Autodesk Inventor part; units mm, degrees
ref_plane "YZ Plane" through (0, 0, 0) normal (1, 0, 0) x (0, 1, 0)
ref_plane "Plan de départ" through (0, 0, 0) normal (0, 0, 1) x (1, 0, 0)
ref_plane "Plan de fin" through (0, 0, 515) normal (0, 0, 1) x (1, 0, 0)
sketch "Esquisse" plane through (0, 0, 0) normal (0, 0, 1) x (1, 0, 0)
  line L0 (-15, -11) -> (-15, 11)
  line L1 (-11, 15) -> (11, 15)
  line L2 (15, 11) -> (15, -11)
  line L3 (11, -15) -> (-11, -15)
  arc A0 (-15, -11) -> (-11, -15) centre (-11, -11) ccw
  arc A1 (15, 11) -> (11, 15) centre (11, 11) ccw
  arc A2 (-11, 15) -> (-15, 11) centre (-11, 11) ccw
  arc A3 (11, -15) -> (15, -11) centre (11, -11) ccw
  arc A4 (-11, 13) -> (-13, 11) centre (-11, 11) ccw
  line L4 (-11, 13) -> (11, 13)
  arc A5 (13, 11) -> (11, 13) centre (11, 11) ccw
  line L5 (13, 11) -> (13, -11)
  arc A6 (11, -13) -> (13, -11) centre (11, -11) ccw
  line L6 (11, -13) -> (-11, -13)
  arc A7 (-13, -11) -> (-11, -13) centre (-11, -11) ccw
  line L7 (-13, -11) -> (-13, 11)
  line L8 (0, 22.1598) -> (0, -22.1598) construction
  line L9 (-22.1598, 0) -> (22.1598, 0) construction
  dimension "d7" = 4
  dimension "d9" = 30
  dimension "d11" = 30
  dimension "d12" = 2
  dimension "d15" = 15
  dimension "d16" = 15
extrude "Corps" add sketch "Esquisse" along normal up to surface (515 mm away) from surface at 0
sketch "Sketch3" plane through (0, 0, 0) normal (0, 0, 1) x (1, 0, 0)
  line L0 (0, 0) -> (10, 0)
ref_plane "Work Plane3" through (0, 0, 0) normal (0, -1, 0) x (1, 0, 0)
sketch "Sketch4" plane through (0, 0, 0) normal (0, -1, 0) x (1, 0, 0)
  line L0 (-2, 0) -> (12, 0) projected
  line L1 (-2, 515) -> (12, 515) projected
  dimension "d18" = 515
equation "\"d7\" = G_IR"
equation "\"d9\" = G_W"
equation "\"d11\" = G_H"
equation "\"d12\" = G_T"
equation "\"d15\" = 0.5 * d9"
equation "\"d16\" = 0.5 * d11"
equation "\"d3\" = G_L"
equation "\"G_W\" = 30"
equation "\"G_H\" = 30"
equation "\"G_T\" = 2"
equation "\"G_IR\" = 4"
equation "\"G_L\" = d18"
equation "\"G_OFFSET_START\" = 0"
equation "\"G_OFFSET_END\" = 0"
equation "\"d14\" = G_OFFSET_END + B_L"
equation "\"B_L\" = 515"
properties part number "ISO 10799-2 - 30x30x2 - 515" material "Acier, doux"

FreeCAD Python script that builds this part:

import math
import FreeCAD as App
import Part
import Sketcher

V = App.Vector
Q = App.Units.Quantity

doc = App.newDocument("Part")
body = doc.addObject("PartDesign::Body", "Body")

# Sketch on XY plane
sketch1 = doc.addObject("Sketcher::SketchObject", "Sketch")
body.addObject(sketch1)
sketch1.AttachmentSupport = (doc.XY_Plane, [""])
sketch1.MapMode = "FlatFace"
sketch1.addGeometry([
    Part.LineSegment(V(-15, 11, 0), V(-15, -11, 0)),  # 0
    Part.ArcOfCircle(Part.Circle(V(-11, -11, 0), V(0, 0, 1), 4), math.radians(180), math.radians(270)),  # 1
    Part.LineSegment(V(-11, -15, 0), V(11, -15, 0)),  # 2
    Part.ArcOfCircle(Part.Circle(V(11, -11, 0), V(0, 0, 1), 4), math.radians(-90), math.radians(0)),  # 3
    Part.LineSegment(V(15, -11, 0), V(15, 11, 0)),  # 4
    Part.ArcOfCircle(Part.Circle(V(11, 11, 0), V(0, 0, 1), 4), math.radians(0), math.radians(90)),  # 5
    Part.LineSegment(V(11, 15, 0), V(-11, 15, 0)),  # 6
    Part.ArcOfCircle(Part.Circle(V(-11, 11, 0), V(0, 0, 1), 4), math.radians(90), math.radians(180)),  # 7
    Part.ArcOfCircle(Part.Circle(V(-11, 11, 0), V(0, 0, 1), 2), math.radians(90), math.radians(180)),  # 8
    Part.LineSegment(V(-11, 13, 0), V(11, 13, 0)),  # 9
    Part.ArcOfCircle(Part.Circle(V(11, 11, 0), V(0, 0, 1), 2), math.radians(0), math.radians(90)),  # 10
    Part.LineSegment(V(13, 11, 0), V(13, -11, 0)),  # 11
    Part.ArcOfCircle(Part.Circle(V(11, -11, 0), V(0, 0, 1), 2), math.radians(-90), math.radians(0)),  # 12
    Part.LineSegment(V(11, -13, 0), V(-11, -13, 0)),  # 13
    Part.ArcOfCircle(Part.Circle(V(-11, -11, 0), V(0, 0, 1), 2), math.radians(180), math.radians(270)),  # 14
    Part.LineSegment(V(-13, -11, 0), V(-13, 11, 0)),  # 15
], False)
sketch1.addConstraint([
    Sketcher.Constraint("Tangent", 0, 2, 1, 1),
    Sketcher.Constraint("Tangent", 1, 2, 2, 1),
    Sketcher.Constraint("Tangent", 2, 2, 3, 1),
    Sketcher.Constraint("Tangent", 3, 2, 4, 1),
    Sketcher.Constraint("Tangent", 4, 2, 5, 1),
    Sketcher.Constraint("Tangent", 5, 2, 6, 1),
    Sketcher.Constraint("Tangent", 6, 2, 7, 1),
    Sketcher.Constraint("Tangent", 7, 2, 0, 1),
    Sketcher.Constraint("Tangent", 8, 1, 9, 1),
    Sketcher.Constraint("Tangent", 9, 2, 10, 2),
    Sketcher.Constraint("Tangent", 10, 1, 11, 1),
    Sketcher.Constraint("Tangent", 11, 2, 12, 2),
    Sketcher.Constraint("Tangent", 12, 1, 13, 1),
    Sketcher.Constraint("Tangent", 13, 2, 14, 2),
    Sketcher.Constraint("Tangent", 14, 1, 15, 1),
    Sketcher.Constraint("Tangent", 15, 2, 8, 2),
    Sketcher.Constraint("Vertical", 0),
    Sketcher.Constraint("Horizontal", 2),
    Sketcher.Constraint("Vertical", 4),
    Sketcher.Constraint("Horizontal", 6),
    Sketcher.Constraint("Horizontal", 9),
    Sketcher.Constraint("Vertical", 11),
    Sketcher.Constraint("Horizontal", 13),
    Sketcher.Constraint("Vertical", 15),
    Sketcher.Constraint("Coincident", 8, 3, 7, 3),
    Sketcher.Constraint("Coincident", 10, 3, 5, 3),
    Sketcher.Constraint("Coincident", 12, 3, 3, 3),
    Sketcher.Constraint("Equal", 1, 3),
    Sketcher.Constraint("Equal", 3, 5),
    Sketcher.Constraint("Equal", 5, 7),
    Sketcher.Constraint("Equal", 12, 14),
    Sketcher.Constraint("Symmetric", 1, 3, 5, 3, -1, 1),
    Sketcher.Constraint("Equal", 13, 0),
    Sketcher.Constraint("Radius", 1, Q("4 mm")),
    Sketcher.Constraint("Radius", 8, Q("2 mm")),
    Sketcher.Constraint("DistanceX", 0, 2, -1, 1, Q("15 mm")),
])
pad1 = doc.addObject("PartDesign::Pad", "Pad")
body.addObject(pad1)
pad1.Profile = sketch1
pad1.Length = 515

doc.recompute()
